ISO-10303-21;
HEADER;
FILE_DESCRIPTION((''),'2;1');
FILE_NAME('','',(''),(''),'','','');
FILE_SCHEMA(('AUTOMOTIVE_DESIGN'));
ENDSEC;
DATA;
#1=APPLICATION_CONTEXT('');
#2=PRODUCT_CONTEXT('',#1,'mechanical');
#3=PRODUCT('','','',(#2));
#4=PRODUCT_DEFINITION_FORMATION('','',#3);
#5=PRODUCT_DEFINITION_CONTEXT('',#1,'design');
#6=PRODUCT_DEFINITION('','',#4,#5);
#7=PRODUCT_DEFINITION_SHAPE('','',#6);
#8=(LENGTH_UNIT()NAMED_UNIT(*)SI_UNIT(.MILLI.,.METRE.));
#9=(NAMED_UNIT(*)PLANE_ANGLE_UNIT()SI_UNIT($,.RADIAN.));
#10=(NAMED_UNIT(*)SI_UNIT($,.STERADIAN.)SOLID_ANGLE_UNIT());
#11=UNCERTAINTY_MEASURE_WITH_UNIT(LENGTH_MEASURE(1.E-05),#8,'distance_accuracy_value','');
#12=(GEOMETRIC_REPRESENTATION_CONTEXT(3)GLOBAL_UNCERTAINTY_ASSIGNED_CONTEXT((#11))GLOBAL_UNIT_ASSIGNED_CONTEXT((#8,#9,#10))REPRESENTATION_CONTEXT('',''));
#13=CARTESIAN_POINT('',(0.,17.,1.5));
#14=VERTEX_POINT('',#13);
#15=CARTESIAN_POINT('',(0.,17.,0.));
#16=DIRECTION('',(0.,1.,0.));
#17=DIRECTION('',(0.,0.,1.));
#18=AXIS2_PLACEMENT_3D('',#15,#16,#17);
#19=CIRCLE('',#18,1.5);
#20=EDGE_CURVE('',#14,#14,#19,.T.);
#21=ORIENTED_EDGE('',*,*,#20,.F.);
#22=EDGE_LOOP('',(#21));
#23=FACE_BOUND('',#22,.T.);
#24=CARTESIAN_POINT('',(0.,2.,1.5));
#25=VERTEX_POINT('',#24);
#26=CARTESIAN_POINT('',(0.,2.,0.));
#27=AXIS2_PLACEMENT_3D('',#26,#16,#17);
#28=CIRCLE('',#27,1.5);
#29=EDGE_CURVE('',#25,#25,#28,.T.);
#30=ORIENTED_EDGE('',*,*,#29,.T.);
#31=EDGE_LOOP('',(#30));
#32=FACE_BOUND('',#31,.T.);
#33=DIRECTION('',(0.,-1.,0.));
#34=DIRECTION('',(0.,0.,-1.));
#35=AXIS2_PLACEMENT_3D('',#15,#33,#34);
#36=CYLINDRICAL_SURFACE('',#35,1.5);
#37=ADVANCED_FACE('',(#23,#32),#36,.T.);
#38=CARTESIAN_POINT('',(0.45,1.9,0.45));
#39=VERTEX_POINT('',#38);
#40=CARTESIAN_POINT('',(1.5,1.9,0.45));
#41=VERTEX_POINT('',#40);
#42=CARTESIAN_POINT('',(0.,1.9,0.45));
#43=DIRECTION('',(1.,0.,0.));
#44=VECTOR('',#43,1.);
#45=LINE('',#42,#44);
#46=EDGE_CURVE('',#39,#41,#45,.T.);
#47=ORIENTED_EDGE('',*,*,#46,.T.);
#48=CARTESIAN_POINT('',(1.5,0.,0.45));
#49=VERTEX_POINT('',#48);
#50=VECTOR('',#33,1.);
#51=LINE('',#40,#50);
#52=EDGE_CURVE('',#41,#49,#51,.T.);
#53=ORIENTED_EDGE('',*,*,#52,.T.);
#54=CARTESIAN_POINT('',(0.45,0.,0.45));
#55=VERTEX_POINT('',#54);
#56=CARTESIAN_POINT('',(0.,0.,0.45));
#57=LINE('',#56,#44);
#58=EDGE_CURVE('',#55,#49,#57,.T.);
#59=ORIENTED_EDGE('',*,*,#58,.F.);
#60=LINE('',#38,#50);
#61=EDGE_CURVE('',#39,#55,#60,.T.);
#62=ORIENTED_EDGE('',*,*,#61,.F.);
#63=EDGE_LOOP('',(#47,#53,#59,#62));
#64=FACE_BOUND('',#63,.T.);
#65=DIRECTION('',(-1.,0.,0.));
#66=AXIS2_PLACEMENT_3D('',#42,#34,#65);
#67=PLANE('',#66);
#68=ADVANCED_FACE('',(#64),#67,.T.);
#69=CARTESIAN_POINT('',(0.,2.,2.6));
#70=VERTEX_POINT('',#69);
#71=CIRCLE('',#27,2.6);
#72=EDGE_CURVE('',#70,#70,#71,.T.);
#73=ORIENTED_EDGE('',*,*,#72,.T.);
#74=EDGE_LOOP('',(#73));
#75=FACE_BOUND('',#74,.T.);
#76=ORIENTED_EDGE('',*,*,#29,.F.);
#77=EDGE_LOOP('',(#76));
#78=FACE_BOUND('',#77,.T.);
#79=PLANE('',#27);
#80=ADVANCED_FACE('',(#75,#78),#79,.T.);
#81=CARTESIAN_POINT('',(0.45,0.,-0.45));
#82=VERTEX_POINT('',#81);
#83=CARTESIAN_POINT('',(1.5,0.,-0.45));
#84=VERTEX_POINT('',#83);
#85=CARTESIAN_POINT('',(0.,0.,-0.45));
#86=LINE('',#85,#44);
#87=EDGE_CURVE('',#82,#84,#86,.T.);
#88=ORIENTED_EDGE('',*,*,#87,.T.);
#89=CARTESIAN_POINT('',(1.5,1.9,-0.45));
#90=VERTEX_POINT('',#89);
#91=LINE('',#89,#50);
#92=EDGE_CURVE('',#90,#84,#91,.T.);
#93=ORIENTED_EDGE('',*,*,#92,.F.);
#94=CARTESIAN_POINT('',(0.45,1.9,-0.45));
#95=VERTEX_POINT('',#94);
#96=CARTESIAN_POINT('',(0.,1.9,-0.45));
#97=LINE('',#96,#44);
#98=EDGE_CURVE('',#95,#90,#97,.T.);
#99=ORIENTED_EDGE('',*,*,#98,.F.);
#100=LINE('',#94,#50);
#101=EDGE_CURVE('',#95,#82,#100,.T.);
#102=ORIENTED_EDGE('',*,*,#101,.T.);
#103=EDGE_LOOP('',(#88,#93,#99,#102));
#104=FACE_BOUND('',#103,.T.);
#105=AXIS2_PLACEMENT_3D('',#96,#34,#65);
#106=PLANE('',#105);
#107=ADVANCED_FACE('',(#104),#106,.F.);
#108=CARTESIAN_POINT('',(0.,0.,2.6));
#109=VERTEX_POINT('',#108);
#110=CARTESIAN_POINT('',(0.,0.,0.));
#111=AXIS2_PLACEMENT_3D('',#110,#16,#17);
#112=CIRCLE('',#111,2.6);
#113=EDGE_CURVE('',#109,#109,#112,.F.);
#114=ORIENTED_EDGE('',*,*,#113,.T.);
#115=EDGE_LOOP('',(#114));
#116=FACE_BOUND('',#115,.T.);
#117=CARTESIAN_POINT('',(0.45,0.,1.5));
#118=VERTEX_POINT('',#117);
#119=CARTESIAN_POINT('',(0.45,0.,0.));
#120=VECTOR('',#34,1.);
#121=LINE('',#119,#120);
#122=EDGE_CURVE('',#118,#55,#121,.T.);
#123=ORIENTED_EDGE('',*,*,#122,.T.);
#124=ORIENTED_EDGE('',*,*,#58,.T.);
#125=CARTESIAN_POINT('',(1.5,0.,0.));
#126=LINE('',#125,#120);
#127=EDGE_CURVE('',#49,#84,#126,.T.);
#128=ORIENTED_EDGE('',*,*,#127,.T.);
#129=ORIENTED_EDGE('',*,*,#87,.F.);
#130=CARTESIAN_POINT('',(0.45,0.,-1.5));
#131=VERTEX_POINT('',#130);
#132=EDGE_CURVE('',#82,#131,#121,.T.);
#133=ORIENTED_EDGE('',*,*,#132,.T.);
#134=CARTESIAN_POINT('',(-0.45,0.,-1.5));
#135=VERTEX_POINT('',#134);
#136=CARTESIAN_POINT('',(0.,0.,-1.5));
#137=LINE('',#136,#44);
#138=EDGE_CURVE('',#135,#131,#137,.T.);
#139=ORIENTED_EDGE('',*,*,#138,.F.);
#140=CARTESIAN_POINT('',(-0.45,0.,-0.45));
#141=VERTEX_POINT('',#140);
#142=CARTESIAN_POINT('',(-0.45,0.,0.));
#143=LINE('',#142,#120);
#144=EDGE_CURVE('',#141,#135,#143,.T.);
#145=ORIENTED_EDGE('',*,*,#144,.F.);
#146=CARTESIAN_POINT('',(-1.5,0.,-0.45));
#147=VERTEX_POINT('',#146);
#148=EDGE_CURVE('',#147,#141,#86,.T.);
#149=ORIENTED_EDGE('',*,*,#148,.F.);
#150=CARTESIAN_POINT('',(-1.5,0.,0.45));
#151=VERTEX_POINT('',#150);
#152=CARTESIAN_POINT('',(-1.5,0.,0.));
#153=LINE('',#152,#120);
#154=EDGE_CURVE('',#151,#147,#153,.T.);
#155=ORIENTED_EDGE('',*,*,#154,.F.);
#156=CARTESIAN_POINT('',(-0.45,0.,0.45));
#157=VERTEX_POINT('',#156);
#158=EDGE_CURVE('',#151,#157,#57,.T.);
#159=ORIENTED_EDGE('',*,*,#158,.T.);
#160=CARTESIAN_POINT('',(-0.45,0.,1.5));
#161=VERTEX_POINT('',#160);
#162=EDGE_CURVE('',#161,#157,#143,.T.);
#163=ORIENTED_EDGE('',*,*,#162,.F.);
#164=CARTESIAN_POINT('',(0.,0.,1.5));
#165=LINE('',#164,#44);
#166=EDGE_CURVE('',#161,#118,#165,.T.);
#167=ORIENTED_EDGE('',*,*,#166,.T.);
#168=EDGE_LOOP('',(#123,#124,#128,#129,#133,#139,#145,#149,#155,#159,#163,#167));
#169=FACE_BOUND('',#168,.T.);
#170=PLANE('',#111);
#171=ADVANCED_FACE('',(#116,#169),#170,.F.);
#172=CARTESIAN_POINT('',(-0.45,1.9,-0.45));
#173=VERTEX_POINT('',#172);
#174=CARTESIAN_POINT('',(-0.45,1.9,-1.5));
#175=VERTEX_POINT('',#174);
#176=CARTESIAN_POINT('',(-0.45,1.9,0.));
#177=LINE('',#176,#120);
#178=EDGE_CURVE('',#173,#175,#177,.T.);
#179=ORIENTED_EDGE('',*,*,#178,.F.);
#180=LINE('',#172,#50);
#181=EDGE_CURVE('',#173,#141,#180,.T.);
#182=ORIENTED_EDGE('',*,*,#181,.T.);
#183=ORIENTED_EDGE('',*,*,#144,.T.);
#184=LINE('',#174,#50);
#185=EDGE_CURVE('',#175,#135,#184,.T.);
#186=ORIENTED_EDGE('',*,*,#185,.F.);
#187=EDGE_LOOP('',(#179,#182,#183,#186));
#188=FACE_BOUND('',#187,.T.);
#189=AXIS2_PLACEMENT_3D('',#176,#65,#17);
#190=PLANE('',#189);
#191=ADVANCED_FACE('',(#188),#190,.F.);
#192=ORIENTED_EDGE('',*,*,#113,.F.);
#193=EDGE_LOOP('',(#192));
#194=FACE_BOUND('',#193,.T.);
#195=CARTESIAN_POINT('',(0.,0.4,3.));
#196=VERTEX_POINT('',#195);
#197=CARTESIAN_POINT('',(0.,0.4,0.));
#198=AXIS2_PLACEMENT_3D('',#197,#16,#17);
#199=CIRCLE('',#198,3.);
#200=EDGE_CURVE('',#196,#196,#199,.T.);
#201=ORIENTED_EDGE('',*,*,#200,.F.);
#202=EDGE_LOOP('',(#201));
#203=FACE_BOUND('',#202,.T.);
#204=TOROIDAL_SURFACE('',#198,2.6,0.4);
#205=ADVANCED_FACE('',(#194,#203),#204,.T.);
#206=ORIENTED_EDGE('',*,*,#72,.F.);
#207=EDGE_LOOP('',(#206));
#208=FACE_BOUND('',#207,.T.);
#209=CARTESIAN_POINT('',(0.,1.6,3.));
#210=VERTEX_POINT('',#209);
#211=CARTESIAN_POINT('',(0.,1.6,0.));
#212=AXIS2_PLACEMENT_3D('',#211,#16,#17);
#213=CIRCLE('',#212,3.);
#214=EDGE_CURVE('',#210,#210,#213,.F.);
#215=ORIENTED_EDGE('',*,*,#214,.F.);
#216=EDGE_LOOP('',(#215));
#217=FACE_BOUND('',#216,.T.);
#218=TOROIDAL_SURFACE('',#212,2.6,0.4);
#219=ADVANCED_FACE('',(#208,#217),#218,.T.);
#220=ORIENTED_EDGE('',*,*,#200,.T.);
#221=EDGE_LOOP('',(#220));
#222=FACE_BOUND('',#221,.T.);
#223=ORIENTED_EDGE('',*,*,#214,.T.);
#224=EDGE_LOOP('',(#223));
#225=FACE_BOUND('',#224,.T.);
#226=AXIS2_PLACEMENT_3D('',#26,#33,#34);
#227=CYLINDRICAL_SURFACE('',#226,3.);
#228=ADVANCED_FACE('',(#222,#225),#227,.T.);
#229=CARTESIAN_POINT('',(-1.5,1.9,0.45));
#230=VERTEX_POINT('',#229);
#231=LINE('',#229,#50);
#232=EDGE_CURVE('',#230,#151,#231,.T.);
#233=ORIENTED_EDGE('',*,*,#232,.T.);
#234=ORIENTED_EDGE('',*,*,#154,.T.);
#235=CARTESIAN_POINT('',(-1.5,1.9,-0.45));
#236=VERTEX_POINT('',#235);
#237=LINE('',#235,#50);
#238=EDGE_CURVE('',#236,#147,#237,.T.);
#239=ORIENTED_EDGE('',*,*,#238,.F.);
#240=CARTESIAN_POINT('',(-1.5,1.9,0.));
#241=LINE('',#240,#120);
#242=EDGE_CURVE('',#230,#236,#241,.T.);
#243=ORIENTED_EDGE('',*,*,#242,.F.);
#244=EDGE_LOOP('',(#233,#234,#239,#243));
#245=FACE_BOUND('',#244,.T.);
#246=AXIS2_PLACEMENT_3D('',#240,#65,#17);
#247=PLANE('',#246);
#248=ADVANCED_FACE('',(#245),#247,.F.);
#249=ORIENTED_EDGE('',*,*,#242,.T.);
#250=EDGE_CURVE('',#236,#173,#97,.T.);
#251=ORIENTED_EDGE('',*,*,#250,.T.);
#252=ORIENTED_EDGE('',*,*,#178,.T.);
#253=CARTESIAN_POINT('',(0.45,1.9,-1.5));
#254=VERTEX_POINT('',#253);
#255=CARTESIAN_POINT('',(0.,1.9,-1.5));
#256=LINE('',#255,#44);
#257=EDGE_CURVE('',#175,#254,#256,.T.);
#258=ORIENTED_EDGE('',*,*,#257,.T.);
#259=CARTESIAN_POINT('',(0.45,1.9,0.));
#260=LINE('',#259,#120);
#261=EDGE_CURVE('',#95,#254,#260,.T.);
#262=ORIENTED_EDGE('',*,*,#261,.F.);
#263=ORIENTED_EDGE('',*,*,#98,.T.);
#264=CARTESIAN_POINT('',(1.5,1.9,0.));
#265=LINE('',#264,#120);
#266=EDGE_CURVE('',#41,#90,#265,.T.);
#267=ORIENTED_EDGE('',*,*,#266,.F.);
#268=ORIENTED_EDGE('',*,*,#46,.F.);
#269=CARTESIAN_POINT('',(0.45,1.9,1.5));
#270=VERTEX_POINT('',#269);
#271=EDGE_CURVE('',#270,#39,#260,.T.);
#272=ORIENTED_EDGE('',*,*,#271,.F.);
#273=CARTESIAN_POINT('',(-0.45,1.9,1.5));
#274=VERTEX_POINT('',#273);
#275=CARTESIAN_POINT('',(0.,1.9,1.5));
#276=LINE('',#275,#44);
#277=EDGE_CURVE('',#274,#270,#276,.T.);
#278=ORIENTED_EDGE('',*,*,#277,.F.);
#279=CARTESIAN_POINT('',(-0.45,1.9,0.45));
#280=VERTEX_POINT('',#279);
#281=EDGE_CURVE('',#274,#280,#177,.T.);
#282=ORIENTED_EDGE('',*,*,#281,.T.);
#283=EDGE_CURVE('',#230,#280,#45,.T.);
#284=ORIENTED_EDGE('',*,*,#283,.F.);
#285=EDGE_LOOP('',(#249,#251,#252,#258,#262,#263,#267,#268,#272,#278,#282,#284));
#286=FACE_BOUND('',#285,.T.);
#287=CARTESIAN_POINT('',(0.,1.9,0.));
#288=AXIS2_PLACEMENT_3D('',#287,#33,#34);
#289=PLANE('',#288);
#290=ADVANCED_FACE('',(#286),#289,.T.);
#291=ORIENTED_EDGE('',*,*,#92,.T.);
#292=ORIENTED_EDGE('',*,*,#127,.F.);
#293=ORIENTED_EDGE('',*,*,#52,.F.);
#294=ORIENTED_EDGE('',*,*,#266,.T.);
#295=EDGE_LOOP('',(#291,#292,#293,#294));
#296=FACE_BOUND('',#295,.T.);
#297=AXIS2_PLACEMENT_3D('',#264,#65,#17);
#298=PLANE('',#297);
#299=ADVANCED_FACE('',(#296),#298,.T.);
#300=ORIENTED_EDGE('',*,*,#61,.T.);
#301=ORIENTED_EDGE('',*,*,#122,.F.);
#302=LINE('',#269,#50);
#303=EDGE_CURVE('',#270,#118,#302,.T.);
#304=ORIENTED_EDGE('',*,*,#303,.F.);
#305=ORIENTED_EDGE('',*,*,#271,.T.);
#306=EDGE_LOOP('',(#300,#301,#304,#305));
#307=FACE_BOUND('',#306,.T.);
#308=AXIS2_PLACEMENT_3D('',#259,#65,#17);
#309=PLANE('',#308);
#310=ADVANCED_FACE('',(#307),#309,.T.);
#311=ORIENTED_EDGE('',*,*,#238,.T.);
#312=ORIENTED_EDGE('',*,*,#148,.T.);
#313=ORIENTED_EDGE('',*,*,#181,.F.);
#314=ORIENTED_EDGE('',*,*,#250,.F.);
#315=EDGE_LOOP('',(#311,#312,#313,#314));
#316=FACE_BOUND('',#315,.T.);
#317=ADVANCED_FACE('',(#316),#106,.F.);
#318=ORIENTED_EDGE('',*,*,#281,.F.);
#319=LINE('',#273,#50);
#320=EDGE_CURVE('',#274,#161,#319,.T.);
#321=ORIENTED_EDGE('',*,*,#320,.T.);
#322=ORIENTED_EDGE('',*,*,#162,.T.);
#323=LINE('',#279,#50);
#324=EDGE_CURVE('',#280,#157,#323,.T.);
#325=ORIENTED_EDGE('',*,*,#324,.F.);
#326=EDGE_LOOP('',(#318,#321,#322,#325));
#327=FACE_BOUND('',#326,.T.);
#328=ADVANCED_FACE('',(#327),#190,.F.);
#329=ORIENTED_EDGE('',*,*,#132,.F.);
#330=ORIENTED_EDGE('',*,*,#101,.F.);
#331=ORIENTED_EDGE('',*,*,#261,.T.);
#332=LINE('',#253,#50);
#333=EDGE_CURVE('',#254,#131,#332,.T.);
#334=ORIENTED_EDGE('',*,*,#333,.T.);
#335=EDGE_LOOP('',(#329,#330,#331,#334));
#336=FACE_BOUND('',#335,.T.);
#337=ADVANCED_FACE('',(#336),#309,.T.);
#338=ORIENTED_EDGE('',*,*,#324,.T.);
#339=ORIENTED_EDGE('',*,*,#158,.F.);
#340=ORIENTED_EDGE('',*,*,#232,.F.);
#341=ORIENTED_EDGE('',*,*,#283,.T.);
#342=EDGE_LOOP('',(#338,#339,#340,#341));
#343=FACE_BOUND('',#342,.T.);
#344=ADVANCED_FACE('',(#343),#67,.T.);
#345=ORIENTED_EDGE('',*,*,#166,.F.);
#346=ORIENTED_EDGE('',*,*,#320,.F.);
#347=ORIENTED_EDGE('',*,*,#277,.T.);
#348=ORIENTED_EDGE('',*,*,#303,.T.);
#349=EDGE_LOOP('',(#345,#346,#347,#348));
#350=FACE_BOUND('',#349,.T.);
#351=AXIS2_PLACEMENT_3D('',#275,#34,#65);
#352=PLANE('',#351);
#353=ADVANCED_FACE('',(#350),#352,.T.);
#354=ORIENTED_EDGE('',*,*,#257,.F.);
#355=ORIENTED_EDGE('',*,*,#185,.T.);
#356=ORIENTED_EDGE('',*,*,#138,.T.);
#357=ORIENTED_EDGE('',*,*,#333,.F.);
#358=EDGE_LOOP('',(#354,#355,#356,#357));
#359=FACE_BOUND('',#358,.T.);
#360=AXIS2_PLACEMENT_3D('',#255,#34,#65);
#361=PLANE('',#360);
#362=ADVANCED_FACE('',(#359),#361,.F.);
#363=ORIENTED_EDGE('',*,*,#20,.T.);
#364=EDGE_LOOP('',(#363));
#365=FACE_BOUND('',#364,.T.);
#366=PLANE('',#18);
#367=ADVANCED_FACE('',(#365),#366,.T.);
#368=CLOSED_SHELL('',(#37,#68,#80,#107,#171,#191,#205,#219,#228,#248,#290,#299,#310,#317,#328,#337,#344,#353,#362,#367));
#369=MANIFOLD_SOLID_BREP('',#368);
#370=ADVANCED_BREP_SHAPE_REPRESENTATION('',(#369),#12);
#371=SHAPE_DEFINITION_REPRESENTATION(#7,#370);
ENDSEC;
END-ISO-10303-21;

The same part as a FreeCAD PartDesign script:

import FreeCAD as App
import Part
import Sketcher
from FreeCAD import Vector


def edges_at(feature, points):
    """Names of the edges that pass closest to the given points."""
    edges = feature.Shape.Edges
    near = lambda p: min(range(len(edges)), key=lambda i: edges[i].distToShape(Part.Vertex(*p))[0])
    return sorted({f"Edge{near(p) + 1}" for p in points})


def add_polygon(sketch, points):
    """Adds a closed chain of lines whose ends are joined by coincident constraints."""
    first, n = sketch.GeometryCount, len(points)
    for a, b in zip(points, points[1:] + points[:1]):
        sketch.addGeometry(Part.LineSegment(App.Vector(*a, 0), App.Vector(*b, 0)), False)
    for i in range(n):
        sketch.addConstraint(Sketcher.Constraint("Coincident", first + i, 2, first + (i + 1) % n, 1))

doc = App.newDocument("Part")
body = doc.addObject("PartDesign::Body", "Body")

# Sketch on XZ plane
sketch1 = body.newObject("Sketcher::SketchObject", "Sketch")
sketch1.AttachmentSupport = (doc.getObject("XZ_Plane"), [""])
sketch1.MapMode = "FlatFace"
sketch1.addGeometry(Part.Circle(Vector(0, 0, 0), Vector(0, 0, 1), 3), False)
sketch1.addConstraint([
    Sketcher.Constraint("Coincident", 0, 3, -1, 1),
    Sketcher.Constraint("Diameter", 0, 6.0),
])
pad1 = body.newObject("PartDesign::Pad", "Pad")
pad1.Profile = sketch1
pad1.Length = 2
pad1.Reversed = True

# Sketch on XZ plane
sketch2 = body.newObject("Sketcher::SketchObject", "Sketch001")
sketch2.AttachmentSupport = (doc.getObject("XZ_Plane"), [""])
sketch2.MapMode = "FlatFace"
sketch2.AttachmentOffset = App.Placement(Vector(0, 0, -2), App.Rotation())
sketch2.addGeometry(Part.Circle(Vector(0, 0, 0), Vector(0, 0, 1), 1.5), False)
sketch2.addConstraint([
    Sketcher.Constraint("Coincident", 0, 3, -1, 1),
    Sketcher.Constraint("Diameter", 0, 3.0),
])
pad2 = body.newObject("PartDesign::Pad", "Pad001")
pad2.Profile = sketch2
pad2.Length = 15
pad2.Reversed = True

# Sketch on XZ plane
sketch3 = body.newObject("Sketcher::SketchObject", "Sketch002")
sketch3.AttachmentSupport = (doc.getObject("XZ_Plane"), [""])
sketch3.MapMode = "FlatFace"
add_polygon(sketch3, [(0.5, 0.5), (0.5, 1.5), (-0.5, 1.5), (-0.5, 0.5), (-1.5, 0.5), (-1.5, -0.5), (-0.5, -0.5), (-0.5, -1.5), (0.5, -1.5), (0.5, -0.5), (1.5, -0.5), (1.5, 0.5)])  # lines 0-11
sketch3.addConstraint([
    Sketcher.Constraint("Vertical", 0),
    Sketcher.Constraint("Horizontal", 1),
    Sketcher.Constraint("Vertical", 2),
    Sketcher.Constraint("Horizontal", 3),
    Sketcher.Constraint("Vertical", 4),
    Sketcher.Constraint("Horizontal", 5),
    Sketcher.Constraint("Vertical", 6),
    Sketcher.Constraint("Horizontal", 7),
    Sketcher.Constraint("Vertical", 8),
    Sketcher.Constraint("Horizontal", 9),
    Sketcher.Constraint("Vertical", 10),
    Sketcher.Constraint("Horizontal", 11),
    Sketcher.Constraint("Symmetric", 0, 2, 6, 2, -1, 1),
    Sketcher.Constraint("Symmetric", 2, 2, 8, 2, -1, 1),
    Sketcher.Constraint("Symmetric", 4, 2, 10, 2, -1, 1),
    Sketcher.Constraint("Symmetric", 5, 2, 8, 2, -2),
    Sketcher.Constraint("Equal", 11, 0),
    Sketcher.Constraint("Equal", 7, 4),
    Sketcher.Constraint("DistanceX", 1, 2, 1, 1, 0.9),
    Sketcher.Constraint("DistanceY", 6, 2, 1, 2, 3.0),
])
pocket1 = body.newObject("PartDesign::Pocket", "Pocket")
pocket1.Profile = sketch3
pocket1.Length = 1.9
doc.recompute()

fillet = body.newObject("PartDesign::Fillet", "Fillet")
fillet.Base = (pocket1, edges_at(pocket1, [(-3, 0, 0), (-3, 2, 0)]))
fillet.Radius = 0.4

doc.recompute()
